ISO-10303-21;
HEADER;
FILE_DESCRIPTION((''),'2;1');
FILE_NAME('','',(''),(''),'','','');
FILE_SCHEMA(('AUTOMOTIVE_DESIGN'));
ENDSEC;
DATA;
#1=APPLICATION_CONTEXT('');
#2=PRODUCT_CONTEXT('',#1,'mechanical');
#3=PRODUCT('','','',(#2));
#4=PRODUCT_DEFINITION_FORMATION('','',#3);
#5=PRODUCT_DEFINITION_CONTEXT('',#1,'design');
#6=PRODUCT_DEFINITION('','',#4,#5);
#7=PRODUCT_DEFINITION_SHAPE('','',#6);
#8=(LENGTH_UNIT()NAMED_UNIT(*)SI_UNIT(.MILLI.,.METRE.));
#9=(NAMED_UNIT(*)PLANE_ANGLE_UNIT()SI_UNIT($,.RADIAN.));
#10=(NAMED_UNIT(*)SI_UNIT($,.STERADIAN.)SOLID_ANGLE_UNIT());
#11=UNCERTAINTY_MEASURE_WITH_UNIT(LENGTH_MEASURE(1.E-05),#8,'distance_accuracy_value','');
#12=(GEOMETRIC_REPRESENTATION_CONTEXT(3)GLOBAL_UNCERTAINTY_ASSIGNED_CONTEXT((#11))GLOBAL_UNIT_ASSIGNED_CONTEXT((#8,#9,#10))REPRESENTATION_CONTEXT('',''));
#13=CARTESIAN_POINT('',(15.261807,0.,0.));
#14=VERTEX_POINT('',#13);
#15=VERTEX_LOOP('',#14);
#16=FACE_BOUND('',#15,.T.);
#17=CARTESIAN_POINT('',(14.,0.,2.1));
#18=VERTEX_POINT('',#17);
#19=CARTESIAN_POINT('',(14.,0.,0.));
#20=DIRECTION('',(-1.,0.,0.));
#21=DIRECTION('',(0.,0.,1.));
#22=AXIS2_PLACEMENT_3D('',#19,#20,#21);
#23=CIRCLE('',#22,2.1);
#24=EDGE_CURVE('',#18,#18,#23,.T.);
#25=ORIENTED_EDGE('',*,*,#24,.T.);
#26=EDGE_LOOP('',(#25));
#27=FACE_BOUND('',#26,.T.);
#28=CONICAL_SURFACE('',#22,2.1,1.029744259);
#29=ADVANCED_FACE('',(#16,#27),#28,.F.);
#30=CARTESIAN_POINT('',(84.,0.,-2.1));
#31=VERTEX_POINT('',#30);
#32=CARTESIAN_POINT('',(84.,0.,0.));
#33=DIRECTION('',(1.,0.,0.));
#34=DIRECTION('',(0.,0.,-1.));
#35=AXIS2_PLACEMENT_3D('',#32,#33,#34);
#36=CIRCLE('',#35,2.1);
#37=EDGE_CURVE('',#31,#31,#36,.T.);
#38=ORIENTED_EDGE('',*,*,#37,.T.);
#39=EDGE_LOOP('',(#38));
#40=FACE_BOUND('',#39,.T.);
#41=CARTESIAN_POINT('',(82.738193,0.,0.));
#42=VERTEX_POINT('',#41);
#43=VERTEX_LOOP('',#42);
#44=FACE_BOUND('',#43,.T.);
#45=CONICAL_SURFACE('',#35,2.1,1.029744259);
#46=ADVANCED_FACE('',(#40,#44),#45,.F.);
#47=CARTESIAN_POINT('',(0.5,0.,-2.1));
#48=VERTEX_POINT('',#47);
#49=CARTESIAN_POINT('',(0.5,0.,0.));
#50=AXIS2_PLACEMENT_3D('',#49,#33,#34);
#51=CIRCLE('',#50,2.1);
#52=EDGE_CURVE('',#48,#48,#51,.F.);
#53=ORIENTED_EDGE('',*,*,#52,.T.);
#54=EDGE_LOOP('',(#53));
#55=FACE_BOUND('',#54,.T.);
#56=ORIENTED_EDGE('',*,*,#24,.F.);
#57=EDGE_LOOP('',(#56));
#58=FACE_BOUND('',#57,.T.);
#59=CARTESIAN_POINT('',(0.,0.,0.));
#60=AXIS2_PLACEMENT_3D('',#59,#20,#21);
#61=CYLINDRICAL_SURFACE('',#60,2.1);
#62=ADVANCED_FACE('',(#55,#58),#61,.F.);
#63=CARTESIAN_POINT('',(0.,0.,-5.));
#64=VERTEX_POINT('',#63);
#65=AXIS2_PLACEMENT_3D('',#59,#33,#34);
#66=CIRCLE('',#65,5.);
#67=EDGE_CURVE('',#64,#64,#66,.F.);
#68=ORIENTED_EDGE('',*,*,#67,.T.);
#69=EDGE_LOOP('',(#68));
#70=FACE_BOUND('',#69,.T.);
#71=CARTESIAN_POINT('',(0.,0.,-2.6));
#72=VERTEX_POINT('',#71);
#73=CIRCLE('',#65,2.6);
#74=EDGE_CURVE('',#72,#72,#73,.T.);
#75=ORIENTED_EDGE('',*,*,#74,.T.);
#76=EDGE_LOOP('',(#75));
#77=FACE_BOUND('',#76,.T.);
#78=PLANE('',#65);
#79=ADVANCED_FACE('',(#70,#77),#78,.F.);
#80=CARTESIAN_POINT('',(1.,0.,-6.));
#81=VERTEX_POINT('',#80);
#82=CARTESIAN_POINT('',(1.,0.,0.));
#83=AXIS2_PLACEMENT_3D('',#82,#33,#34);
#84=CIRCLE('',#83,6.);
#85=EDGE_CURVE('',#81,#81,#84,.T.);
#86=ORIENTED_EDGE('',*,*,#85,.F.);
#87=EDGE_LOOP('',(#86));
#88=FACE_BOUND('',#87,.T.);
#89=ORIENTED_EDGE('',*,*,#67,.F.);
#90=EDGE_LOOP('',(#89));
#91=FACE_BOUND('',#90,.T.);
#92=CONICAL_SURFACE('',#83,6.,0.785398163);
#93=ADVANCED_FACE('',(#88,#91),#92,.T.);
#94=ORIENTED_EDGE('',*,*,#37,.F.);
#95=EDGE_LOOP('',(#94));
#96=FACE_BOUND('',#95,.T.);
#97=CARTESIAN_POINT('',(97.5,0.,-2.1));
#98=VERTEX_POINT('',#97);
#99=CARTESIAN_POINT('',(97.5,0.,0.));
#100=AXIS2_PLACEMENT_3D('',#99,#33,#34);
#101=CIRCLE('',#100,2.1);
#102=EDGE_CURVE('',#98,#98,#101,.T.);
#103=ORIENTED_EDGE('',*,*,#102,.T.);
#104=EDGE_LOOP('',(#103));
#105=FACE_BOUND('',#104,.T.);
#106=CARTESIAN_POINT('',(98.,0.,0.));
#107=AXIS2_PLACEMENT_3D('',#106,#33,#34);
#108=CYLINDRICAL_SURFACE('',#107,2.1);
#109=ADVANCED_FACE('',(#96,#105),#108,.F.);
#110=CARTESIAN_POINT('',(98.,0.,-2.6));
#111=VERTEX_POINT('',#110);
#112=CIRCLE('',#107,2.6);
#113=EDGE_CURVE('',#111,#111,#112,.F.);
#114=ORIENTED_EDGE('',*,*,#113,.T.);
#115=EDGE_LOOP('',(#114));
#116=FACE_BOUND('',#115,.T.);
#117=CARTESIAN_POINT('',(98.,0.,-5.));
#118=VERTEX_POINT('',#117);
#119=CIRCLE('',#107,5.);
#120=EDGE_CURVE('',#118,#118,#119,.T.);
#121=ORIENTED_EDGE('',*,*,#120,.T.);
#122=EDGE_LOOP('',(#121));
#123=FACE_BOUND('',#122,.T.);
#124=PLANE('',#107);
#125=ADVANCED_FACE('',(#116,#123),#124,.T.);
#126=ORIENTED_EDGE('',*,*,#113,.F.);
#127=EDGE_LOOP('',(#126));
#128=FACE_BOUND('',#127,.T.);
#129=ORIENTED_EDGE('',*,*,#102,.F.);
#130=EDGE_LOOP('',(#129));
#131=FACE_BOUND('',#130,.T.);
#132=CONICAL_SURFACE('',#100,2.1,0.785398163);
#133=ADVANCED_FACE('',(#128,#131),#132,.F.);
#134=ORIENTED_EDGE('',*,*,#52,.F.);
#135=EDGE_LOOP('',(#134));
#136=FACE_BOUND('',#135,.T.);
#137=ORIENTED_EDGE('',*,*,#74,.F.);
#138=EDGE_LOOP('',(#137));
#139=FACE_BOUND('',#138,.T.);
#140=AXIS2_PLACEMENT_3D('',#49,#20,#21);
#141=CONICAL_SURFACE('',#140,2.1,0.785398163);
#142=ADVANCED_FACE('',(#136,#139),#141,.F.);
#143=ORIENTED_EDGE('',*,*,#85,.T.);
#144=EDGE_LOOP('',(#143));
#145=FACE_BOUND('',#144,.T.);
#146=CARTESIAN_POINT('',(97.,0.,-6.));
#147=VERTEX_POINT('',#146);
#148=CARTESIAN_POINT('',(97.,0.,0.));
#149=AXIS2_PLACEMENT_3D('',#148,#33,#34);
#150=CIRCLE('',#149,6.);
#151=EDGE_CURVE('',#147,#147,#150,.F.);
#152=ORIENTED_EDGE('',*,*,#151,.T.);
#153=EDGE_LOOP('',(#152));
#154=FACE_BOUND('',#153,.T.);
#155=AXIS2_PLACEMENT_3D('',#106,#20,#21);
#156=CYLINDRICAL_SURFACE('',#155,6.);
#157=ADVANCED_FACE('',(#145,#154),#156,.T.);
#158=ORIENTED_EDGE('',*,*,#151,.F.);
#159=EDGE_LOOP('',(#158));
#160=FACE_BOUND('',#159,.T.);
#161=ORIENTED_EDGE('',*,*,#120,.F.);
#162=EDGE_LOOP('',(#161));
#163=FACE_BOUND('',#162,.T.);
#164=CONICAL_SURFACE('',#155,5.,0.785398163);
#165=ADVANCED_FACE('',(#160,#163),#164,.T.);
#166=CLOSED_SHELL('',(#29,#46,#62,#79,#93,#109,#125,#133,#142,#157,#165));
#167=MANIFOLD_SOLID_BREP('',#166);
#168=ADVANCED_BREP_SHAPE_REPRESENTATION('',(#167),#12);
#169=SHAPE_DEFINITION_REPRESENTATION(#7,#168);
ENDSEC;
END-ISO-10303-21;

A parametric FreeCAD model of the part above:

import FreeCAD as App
import Part
import Sketcher
Q = App.Units.Quantity


def edges_at(feature, points):
    """Names of the edges that pass closest to the given points."""
    edges = feature.Shape.Edges
    near = lambda p: min(range(len(edges)), key=lambda i: edges[i].distToShape(Part.Vertex(*p))[0])
    return sorted({f"Edge{near(p) + 1}" for p in points})

doc = App.newDocument("Part")
body = doc.addObject("PartDesign::Body", "Body")

# Sketch on YZ plane
sketch1 = doc.addObject("Sketcher::SketchObject", "Sketch")
body.addObject(sketch1)
sketch1.AttachmentSupport = (doc.YZ_Plane, [""])
sketch1.MapMode = "FlatFace"
sketch1.addGeometry(Part.Circle(App.Vector(0, 0, 0), App.Vector(0, 0, 1), 6), False)
sketch1.addConstraint(Sketcher.Constraint("Coincident", 0, 3, -1, 1))
sketch1.addConstraint(Sketcher.Constraint("Diameter", 0, Q("12 mm")))
pad1 = doc.addObject("PartDesign::Pad", "Pad")
body.addObject(pad1)
pad1.Profile = sketch1
pad1.Length = 98
doc.recompute()

chamfer = doc.addObject("PartDesign::Chamfer", "Chamfer")
body.addObject(chamfer)
chamfer.Base = (pad1, edges_at(pad1, [(0, 0, 6), (98, 0, 6)]))
chamfer.Size = 1

# Sketch on YZ plane
sketch2 = doc.addObject("Sketcher::SketchObject", "Sketch001")
body.addObject(sketch2)
sketch2.AttachmentSupport = (doc.YZ_Plane, [""])
sketch2.MapMode = "FlatFace"
sketch2.AttachmentOffset = App.Placement(App.Vector(0, 0, 98), App.Rotation())
sketch2.addGeometry(Part.Circle(App.Vector(0, 0, 0), App.Vector(0, 0, 1), 2.1), False)
sketch2.addConstraint(Sketcher.Constraint("Coincident", 0, 3, -1, 1))
sketch2.addConstraint(Sketcher.Constraint("Diameter", 0, Q("4.2 mm")))
doc.recompute()
hole = doc.addObject("PartDesign::Hole", "Hole")
body.addObject(hole)
hole.Profile = sketch2
hole.ThreadType = "None"
hole.Diameter = 4.2
hole.DepthType = "Dimension"
hole.Depth = 14
hole.DrillPoint = "Angled"
hole.DrillPointAngle = 118
doc.recompute()

chamfer2 = doc.addObject("PartDesign::Chamfer", "Chamfer001")
body.addObject(chamfer2)
chamfer2.Base = (hole, edges_at(hole, [(98, 0, -2.1)]))
chamfer2.Size = 0.5

# Sketch on YZ plane
sketch3 = doc.addObject("Sketcher::SketchObject", "Sketch002")
body.addObject(sketch3)
sketch3.AttachmentSupport = (doc.YZ_Plane, [""])
sketch3.MapMode = "FlatFace"
sketch3.addGeometry(Part.Circle(App.Vector(0, 0, 0), App.Vector(0, 0, 1), 2.1), False)
sketch3.addConstraint(Sketcher.Constraint("Coincident", 0, 3, -1, 1))
sketch3.addConstraint(Sketcher.Constraint("Diameter", 0, Q("4.2 mm")))
doc.recompute()
hole2 = doc.addObject("PartDesign::Hole", "Hole001")
body.addObject(hole2)
hole2.Profile = sketch3
hole2.ThreadType = "None"
hole2.Diameter = 4.2
hole2.DepthType = "Dimension"
hole2.Depth = 14
hole2.DrillPoint = "Angled"
hole2.DrillPointAngle = 118
hole2.Reversed = True
doc.recompute()

chamfer3 = doc.addObject("PartDesign::Chamfer", "Chamfer002")
body.addObject(chamfer3)
chamfer3.Base = (hole2, edges_at(hole2, [(0, 0, 2.1)]))
chamfer3.Size = 0.5

doc.recompute()
